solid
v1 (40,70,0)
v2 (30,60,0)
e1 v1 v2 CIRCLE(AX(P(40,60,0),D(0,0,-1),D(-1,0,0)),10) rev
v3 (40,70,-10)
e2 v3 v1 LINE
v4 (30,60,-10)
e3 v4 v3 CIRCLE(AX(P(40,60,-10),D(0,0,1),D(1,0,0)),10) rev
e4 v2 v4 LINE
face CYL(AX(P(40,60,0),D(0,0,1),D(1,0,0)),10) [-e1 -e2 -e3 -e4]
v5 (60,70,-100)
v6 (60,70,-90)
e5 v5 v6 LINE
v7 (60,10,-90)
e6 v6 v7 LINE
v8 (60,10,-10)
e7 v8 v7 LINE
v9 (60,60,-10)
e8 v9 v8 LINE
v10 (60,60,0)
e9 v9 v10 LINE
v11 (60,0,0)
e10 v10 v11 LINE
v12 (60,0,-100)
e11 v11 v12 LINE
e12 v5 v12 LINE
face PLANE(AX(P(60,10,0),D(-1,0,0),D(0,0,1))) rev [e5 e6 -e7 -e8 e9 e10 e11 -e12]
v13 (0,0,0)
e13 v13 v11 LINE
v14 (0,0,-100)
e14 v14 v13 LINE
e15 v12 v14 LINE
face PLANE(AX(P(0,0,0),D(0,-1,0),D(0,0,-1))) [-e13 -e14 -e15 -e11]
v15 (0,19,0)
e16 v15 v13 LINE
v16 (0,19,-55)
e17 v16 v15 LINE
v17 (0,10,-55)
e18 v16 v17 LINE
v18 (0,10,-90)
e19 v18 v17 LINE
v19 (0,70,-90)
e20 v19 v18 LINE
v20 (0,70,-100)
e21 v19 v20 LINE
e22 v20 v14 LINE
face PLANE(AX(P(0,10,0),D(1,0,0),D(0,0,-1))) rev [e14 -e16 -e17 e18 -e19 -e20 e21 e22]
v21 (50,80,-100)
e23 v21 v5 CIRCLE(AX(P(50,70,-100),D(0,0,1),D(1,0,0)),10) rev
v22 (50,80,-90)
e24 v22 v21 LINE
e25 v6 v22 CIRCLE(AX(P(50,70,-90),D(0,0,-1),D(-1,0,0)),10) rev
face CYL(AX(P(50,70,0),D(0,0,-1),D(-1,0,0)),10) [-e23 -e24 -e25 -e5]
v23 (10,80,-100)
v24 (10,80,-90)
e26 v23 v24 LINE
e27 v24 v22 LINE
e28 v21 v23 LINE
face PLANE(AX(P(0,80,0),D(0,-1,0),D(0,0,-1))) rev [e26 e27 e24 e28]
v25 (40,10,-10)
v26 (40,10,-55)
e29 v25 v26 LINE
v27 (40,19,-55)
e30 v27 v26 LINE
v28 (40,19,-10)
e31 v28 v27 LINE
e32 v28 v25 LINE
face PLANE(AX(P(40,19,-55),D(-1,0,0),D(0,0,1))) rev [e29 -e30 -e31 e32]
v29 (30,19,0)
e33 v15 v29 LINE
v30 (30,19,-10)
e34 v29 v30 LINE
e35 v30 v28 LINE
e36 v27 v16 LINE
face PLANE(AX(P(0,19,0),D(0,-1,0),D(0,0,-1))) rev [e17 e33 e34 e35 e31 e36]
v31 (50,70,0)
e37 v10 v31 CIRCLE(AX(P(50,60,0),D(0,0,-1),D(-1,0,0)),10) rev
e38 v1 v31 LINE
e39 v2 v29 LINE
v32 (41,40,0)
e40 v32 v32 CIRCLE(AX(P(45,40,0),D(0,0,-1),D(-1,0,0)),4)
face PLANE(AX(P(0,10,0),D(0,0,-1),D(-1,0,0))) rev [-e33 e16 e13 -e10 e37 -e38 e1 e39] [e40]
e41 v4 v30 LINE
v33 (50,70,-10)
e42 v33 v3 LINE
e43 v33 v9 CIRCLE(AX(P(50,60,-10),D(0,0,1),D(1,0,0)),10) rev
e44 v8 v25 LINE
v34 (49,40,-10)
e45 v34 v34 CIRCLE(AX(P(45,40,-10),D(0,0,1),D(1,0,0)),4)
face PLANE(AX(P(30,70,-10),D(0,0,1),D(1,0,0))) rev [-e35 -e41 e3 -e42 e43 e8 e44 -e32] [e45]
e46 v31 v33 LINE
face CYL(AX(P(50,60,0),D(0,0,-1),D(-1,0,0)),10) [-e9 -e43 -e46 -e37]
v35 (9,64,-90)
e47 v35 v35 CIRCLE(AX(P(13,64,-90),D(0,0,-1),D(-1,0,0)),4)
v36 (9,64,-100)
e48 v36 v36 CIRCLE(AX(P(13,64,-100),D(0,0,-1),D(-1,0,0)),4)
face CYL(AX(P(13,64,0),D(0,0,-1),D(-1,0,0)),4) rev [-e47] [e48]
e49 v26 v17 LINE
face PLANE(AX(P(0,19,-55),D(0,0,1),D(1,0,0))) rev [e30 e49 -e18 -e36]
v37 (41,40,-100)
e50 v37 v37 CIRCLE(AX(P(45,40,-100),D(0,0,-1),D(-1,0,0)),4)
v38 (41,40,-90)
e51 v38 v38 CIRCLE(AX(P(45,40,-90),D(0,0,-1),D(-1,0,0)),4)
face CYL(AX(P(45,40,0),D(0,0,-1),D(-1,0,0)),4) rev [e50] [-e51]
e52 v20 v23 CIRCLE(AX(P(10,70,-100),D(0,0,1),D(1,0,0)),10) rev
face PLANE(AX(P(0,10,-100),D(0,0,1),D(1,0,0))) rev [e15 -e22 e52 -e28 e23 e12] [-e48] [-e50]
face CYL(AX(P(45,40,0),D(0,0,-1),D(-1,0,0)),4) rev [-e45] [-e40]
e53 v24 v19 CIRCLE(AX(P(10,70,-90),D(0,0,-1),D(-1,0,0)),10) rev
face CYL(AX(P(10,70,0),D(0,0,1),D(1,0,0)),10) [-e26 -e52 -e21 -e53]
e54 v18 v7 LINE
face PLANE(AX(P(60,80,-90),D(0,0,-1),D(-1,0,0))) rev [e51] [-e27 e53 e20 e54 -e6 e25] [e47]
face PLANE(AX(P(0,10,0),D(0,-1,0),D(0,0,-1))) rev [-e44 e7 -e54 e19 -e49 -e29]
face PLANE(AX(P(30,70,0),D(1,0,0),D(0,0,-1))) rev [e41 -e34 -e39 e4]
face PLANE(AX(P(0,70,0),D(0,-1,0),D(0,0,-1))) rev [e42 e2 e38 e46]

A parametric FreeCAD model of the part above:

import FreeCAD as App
import Part
import Sketcher
from FreeCAD import Vector


def edges_at(feature, points):
    """Names of the edges that pass closest to the given points."""
    edges = feature.Shape.Edges
    near = lambda p: min(range(len(edges)), key=lambda i: edges[i].distToShape(Part.Vertex(*p))[0])
    return sorted({f"Edge{near(p) + 1}" for p in points})

doc = App.newDocument("Part")
body = doc.addObject("PartDesign::Body", "Body")

sketch1 = doc.addObject("Sketcher::SketchObject", "Sketch")
body.addObject(sketch1)
sketch1.AttachmentSupport = (doc.XZ_Plane, [""])
sketch1.MapMode = "FlatFace"
sketch1.addGeometry([
    Part.LineSegment(Vector(0, -100, 0), Vector(0, 0, 0)),
    Part.LineSegment(Vector(0, 0, 0), Vector(60, 0, 0)),
    Part.LineSegment(Vector(60, 0, 0), Vector(60, -100, 0)),
    Part.LineSegment(Vector(60, -100, 0), Vector(0, -100, 0)),
], False)
sketch1.addConstraint([
    Sketcher.Constraint("Coincident", 0, 2, 1, 1),
    Sketcher.Constraint("Coincident", 1, 2, 2, 1),
    Sketcher.Constraint("Coincident", 2, 2, 3, 1),
    Sketcher.Constraint("Coincident", 3, 2, 0, 1),
    Sketcher.Constraint("Vertical", 0),
    Sketcher.Constraint("Horizontal", 1),
    Sketcher.Constraint("Vertical", 2),
    Sketcher.Constraint("Horizontal", 3),
    Sketcher.Constraint("Coincident", 0, 2, -1, 1),
    Sketcher.Constraint("DistanceX", 1, 1, 1, 2, 60.0),
    Sketcher.Constraint("DistanceY", 0, 1, 0, 2, 100.0),
])
pad1 = doc.addObject("PartDesign::Pad", "Pad")
body.addObject(pad1)
pad1.Profile = sketch1
pad1.Length = 10
pad1.Reversed = True

sketch2 = doc.addObject("Sketcher::SketchObject", "Sketch001")
body.addObject(sketch2)
sketch2.AttachmentSupport = (doc.XZ_Plane, [""])
sketch2.MapMode = "FlatFace"
sketch2.AttachmentOffset = App.Placement(Vector(0, 0, -10), App.Rotation())
sketch2.addGeometry([
    Part.LineSegment(Vector(30, -10, 0), Vector(30, 0, 0)),
    Part.LineSegment(Vector(30, 0, 0), Vector(60, 0, 0)),
    Part.LineSegment(Vector(60, 0, 0), Vector(60, -10, 0)),
    Part.LineSegment(Vector(60, -10, 0), Vector(30, -10, 0)),
], False)
sketch2.addConstraint([
    Sketcher.Constraint("Coincident", 0, 2, 1, 1),
    Sketcher.Constraint("Coincident", 1, 2, 2, 1),
    Sketcher.Constraint("Coincident", 2, 2, 3, 1),
    Sketcher.Constraint("Coincident", 3, 2, 0, 1),
    Sketcher.Constraint("Vertical", 0),
    Sketcher.Constraint("Horizontal", 1),
    Sketcher.Constraint("Vertical", 2),
    Sketcher.Constraint("Horizontal", 3),
    Sketcher.Constraint("PointOnObject", 0, 2, -1),
    Sketcher.Constraint("DistanceX", 1, 1, 1, 2, 30.0),
    Sketcher.Constraint("DistanceY", 0, 1, 0, 2, 10.0),
    Sketcher.Constraint("DistanceX", -1, 1, 0, 2, 30.0),
])
pad2 = doc.addObject("PartDesign::Pad", "Pad001")
body.addObject(pad2)
pad2.Profile = sketch2
pad2.Length = 60
pad2.Reversed = True

sketch3 = doc.addObject("Sketcher::SketchObject", "Sketch002")
body.addObject(sketch3)
sketch3.AttachmentSupport = (doc.XZ_Plane, [""])
sketch3.MapMode = "FlatFace"
sketch3.AttachmentOffset = App.Placement(Vector(0, 0, -10), App.Rotation())
sketch3.addGeometry([
    Part.LineSegment(Vector(0, -100, 0), Vector(0, -90, 0)),
    Part.LineSegment(Vector(0, -90, 0), Vector(60, -90, 0)),
    Part.LineSegment(Vector(60, -90, 0), Vector(60, -100, 0)),
    Part.LineSegment(Vector(60, -100, 0), Vector(0, -100, 0)),
], False)
sketch3.addConstraint([
    Sketcher.Constraint("Coincident", 0, 2, 1, 1),
    Sketcher.Constraint("Coincident", 1, 2, 2, 1),
    Sketcher.Constraint("Coincident", 2, 2, 3, 1),
    Sketcher.Constraint("Coincident", 3, 2, 0, 1),
    Sketcher.Constraint("Vertical", 0),
    Sketcher.Constraint("Horizontal", 1),
    Sketcher.Constraint("Vertical", 2),
    Sketcher.Constraint("Horizontal", 3),
    Sketcher.Constraint("PointOnObject", 0, 2, -2),
    Sketcher.Constraint("DistanceX", 1, 1, 1, 2, 60.0),
    Sketcher.Constraint("DistanceY", 0, 1, 0, 2, 10.0),
    Sketcher.Constraint("DistanceY", 0, 2, -1, 1, 90.0),
])
pad3 = doc.addObject("PartDesign::Pad", "Pad002")
body.addObject(pad3)
pad3.Profile = sketch3
pad3.Length = 70
pad3.Reversed = True

sketch4 = doc.addObject("Sketcher::SketchObject", "Sketch003")
body.addObject(sketch4)
sketch4.AttachmentSupport = (doc.XZ_Plane, [""])
sketch4.MapMode = "FlatFace"
sketch4.AttachmentOffset = App.Placement(Vector(0, 0, -10), App.Rotation())
sketch4.addGeometry([
    Part.LineSegment(Vector(0, -55, 0), Vector(0, 0, 0)),
    Part.LineSegment(Vector(0, 0, 0), Vector(30, 0, 0)),
    Part.LineSegment(Vector(30, 0, 0), Vector(30, -10, 0)),
    Part.LineSegment(Vector(30, -10, 0), Vector(40, -10, 0)),
    Part.LineSegment(Vector(40, -10, 0), Vector(40, -55, 0)),
    Part.LineSegment(Vector(40, -55, 0), Vector(0, -55, 0)),
], False)
sketch4.addConstraint([
    Sketcher.Constraint("Coincident", 0, 2, 1, 1),
    Sketcher.Constraint("Coincident", 1, 2, 2, 1),
    Sketcher.Constraint("Coincident", 2, 2, 3, 1),
    Sketcher.Constraint("Coincident", 3, 2, 4, 1),
    Sketcher.Constraint("Coincident", 4, 2, 5, 1),
    Sketcher.Constraint("Coincident", 5, 2, 0, 1),
    Sketcher.Constraint("Vertical", 0),
    Sketcher.Constraint("Horizontal", 1),
    Sketcher.Constraint("Vertical", 2),
    Sketcher.Constraint("Horizontal", 3),
    Sketcher.Constraint("Vertical", 4),
    Sketcher.Constraint("Horizontal", 5),
    Sketcher.Constraint("Coincident", 0, 2, -1, 1),
    Sketcher.Constraint("Equal", 3, 2),
    Sketcher.Constraint("DistanceX", 1, 1, 1, 2, 30.0),
    Sketcher.Constraint("DistanceX", 3, 1, 3, 2, 10.0),
    Sketcher.Constraint("DistanceY", 0, 1, 0, 2, 55.0),
])
pad4 = doc.addObject("PartDesign::Pad", "Pad003")
body.addObject(pad4)
pad4.Profile = sketch4
pad4.Length = 9
pad4.Reversed = True

sketch5 = doc.addObject("Sketcher::SketchObject", "Sketch004")
body.addObject(sketch5)
sketch5.AttachmentSupport = (doc.XY_Plane, [""])
sketch5.MapMode = "FlatFace"
sketch5.AttachmentOffset = App.Placement(Vector(0, 0, -100), App.Rotation())
sketch5.addGeometry([
    Part.Circle(Vector(45, 40, 0), Vector(0, 0, 1), 4),
    Part.Circle(Vector(13, 64, 0), Vector(0, 0, 1), 4),
], False)
sketch5.addConstraint([
    Sketcher.Constraint("Equal", 0, 1),
    Sketcher.Constraint("Diameter", 0, 8.0),
    Sketcher.Constraint("DistanceX", -1, 1, 0, 3, 45.0),
    Sketcher.Constraint("DistanceY", -1, 1, 0, 3, 40.0),
    Sketcher.Constraint("DistanceX", -1, 1, 1, 3, 13.0),
    Sketcher.Constraint("DistanceY", -1, 1, 1, 3, 64.0),
])
pocket1 = doc.addObject("PartDesign::Pocket", "Pocket")
body.addObject(pocket1)
pocket1.Profile = sketch5
pocket1.Type = "ThroughAll"
pocket1.Reversed = True
doc.recompute()

fillet = doc.addObject("PartDesign::Fillet", "Fillet")
body.addObject(fillet)
fillet.Base = (pocket1, edges_at(pocket1, [
    (0, 80, -95),
    (60, 80, -95),
    (30, 70, -5),
    (60, 70, -5),
]))
fillet.Radius = 10

doc.recompute()
